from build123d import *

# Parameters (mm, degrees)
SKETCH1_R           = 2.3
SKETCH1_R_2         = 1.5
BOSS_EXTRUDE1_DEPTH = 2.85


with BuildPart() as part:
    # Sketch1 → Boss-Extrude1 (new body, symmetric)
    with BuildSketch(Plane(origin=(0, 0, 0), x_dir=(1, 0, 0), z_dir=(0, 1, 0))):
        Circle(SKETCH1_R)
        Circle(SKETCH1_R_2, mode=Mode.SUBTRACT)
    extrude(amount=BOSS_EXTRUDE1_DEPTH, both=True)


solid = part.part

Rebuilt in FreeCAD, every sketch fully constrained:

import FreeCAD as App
import Part
import Sketcher
Q = App.Units.Quantity

doc = App.newDocument("Part")
body = doc.addObject("PartDesign::Body", "Body")

# Sketch on XZ plane
sketch1 = body.newObject("Sketcher::SketchObject", "Sketch")
sketch1.AttachmentSupport = (doc.getObject("XZ_Plane"), [""])
sketch1.MapMode = "FlatFace"
sketch1.addGeometry([
    Part.Circle(App.Vector(0, 0, 0), App.Vector(0, 0, 1), 2.3),
    Part.Circle(App.Vector(0, 0, 0), App.Vector(0, 0, 1), 1.5),
], False)
sketch1.addConstraint([
    Sketcher.Constraint("Coincident", 0, 3, -1, 1),
    Sketcher.Constraint("Coincident", 1, 3, -1, 1),
    Sketcher.Constraint("Diameter", 1, Q("3 mm")),
    Sketcher.Constraint("Diameter", 0, Q("4.6 mm")),
])
pad1 = body.newObject("PartDesign::Pad", "Pad")
pad1.Profile = sketch1
pad1.Length = 5.7
pad1.Midplane = True

doc.recompute()
